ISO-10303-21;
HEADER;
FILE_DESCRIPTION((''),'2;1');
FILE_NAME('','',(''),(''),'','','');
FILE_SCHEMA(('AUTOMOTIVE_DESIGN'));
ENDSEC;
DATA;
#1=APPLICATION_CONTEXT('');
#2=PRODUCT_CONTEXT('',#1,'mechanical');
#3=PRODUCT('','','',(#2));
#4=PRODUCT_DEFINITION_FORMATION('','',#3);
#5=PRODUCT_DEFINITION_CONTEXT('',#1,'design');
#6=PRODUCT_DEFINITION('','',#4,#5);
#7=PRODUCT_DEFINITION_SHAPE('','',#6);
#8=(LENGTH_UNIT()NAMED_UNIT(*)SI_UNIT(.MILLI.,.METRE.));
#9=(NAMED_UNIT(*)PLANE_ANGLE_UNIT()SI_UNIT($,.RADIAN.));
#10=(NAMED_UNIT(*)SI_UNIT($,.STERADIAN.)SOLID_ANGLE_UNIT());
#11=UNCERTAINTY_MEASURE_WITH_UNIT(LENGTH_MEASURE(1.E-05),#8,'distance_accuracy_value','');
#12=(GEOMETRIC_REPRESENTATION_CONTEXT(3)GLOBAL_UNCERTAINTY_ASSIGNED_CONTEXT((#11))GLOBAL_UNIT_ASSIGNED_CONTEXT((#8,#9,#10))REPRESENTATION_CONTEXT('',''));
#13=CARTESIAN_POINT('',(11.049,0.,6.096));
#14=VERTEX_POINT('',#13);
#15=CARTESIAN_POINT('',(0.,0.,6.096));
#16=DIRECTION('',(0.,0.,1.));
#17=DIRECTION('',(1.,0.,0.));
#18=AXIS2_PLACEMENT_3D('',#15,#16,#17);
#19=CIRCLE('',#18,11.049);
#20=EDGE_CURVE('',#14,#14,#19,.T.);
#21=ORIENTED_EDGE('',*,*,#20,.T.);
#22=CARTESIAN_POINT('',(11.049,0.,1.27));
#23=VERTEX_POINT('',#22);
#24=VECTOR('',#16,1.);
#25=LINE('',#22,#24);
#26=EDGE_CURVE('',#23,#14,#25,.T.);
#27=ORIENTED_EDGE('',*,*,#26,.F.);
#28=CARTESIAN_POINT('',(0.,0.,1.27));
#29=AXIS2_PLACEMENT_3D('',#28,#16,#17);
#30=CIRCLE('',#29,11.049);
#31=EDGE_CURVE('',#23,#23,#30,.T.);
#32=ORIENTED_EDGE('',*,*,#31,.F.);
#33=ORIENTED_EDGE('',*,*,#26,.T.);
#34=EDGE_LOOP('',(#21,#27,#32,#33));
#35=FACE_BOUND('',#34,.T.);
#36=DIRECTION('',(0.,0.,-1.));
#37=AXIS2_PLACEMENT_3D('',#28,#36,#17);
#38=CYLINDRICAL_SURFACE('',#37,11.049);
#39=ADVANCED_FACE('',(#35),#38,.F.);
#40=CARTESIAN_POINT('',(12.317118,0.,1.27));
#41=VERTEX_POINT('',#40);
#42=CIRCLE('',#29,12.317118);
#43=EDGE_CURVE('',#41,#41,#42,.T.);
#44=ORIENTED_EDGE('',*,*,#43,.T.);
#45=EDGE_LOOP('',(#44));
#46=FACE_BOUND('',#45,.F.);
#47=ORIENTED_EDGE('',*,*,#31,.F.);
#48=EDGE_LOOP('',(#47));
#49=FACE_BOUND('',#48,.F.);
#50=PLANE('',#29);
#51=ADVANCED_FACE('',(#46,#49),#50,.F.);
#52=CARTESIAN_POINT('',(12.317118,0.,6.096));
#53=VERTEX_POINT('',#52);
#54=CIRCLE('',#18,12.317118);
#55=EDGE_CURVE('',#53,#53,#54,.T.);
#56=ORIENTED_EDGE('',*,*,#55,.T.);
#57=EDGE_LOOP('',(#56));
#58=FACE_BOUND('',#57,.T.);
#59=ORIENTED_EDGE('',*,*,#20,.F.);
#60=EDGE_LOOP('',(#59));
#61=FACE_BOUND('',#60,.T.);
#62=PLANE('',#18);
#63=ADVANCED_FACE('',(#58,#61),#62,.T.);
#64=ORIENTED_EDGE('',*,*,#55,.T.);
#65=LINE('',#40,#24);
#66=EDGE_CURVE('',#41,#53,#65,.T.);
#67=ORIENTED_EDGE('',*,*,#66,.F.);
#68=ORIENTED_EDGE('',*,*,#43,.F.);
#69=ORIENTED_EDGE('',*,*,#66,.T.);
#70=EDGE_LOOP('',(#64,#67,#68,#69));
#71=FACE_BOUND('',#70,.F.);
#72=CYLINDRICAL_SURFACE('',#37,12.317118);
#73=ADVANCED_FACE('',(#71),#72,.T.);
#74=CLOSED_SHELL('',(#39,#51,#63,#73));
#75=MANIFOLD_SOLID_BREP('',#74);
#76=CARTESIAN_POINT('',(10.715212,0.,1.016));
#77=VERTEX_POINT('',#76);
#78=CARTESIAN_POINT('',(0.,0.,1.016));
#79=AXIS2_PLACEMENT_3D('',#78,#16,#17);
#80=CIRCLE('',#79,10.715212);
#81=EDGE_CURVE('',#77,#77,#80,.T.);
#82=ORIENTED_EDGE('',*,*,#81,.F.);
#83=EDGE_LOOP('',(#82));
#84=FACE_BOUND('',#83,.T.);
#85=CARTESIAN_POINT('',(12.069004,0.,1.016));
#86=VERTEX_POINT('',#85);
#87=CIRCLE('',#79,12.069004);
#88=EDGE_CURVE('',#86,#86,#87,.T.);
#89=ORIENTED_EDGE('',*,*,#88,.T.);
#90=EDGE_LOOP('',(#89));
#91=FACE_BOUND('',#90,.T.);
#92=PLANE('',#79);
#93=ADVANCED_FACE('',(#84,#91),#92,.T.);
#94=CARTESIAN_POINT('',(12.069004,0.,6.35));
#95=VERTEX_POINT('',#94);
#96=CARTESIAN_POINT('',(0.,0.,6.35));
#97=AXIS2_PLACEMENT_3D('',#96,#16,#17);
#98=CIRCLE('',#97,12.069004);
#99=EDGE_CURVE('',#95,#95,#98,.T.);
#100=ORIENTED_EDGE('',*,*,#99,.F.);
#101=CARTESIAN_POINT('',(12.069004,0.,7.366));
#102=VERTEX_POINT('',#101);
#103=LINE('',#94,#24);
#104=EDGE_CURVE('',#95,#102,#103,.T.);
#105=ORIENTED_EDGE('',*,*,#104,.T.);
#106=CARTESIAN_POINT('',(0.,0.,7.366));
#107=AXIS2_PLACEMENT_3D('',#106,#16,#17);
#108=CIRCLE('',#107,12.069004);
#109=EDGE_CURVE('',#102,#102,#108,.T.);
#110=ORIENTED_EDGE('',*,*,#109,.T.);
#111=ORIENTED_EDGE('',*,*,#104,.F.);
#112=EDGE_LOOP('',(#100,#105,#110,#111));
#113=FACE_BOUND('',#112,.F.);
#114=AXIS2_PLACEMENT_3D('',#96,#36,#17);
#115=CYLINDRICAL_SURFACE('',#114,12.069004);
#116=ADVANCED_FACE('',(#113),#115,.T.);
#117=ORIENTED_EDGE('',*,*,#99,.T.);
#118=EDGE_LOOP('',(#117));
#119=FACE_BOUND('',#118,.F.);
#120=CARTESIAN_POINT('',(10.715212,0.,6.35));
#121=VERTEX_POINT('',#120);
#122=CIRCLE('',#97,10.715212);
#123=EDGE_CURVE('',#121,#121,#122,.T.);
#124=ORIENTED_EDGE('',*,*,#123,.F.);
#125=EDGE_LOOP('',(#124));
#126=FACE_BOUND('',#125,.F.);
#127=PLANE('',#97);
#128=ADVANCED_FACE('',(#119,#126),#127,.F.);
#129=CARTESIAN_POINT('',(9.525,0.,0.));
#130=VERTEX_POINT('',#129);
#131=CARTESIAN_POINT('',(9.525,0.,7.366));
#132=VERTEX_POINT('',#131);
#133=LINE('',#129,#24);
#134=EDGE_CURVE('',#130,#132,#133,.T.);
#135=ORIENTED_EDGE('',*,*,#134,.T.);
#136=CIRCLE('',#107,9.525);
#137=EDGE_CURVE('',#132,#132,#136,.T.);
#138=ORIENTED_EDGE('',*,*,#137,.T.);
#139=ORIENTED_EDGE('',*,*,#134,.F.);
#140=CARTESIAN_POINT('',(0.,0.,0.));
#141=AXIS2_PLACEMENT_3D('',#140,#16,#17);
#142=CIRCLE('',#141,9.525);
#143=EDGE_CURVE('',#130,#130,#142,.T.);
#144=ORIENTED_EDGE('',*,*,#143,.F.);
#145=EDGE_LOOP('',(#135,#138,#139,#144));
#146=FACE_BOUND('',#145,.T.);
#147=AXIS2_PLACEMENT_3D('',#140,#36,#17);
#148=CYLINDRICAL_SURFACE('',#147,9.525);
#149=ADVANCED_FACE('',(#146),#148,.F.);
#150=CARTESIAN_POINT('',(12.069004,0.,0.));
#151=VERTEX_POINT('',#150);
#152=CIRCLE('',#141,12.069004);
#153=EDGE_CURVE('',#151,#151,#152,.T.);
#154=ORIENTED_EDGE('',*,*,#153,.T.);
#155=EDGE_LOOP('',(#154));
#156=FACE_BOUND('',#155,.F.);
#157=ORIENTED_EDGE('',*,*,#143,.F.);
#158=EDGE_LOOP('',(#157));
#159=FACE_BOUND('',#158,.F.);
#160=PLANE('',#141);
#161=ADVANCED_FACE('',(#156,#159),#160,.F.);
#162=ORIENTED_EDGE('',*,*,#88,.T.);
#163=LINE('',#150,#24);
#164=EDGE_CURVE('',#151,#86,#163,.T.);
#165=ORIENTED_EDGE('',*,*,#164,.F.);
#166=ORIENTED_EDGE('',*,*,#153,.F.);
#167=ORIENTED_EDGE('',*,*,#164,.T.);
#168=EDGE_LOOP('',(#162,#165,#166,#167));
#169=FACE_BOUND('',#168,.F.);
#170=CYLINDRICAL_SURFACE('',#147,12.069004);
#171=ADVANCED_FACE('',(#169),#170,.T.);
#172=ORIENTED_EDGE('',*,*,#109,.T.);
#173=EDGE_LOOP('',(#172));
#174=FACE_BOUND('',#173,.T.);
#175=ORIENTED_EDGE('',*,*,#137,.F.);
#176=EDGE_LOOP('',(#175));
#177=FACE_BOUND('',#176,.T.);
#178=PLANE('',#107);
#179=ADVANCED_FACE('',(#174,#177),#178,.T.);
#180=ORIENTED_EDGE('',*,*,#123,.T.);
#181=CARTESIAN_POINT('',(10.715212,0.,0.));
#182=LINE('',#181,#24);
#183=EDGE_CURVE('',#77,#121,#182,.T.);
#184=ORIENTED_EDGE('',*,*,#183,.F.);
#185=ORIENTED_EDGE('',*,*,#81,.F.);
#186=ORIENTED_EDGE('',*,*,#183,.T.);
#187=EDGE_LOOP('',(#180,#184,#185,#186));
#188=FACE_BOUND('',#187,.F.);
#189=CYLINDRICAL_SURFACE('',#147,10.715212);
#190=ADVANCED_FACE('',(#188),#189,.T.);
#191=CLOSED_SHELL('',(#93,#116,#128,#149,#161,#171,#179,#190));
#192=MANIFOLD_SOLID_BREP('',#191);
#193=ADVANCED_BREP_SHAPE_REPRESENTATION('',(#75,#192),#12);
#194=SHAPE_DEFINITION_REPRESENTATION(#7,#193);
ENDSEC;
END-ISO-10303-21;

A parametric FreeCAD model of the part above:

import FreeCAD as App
import Part
import Sketcher

V = App.Vector
Q = App.Units.Quantity

doc = App.newDocument("Part")
body = doc.addObject("PartDesign::Body", "Body")

sketch1 = doc.addObject("Sketcher::SketchObject", "Sketch")
body.addObject(sketch1)
sketch1.AttachmentSupport = (doc.XY_Plane, [""])
sketch1.MapMode = "FlatFace"
sketch1.addGeometry([
    Part.Circle(V(0, 0, 0), V(0, 0, 1), 10.715212),
    Part.Circle(V(0, 0, 0), V(0, 0, 1), 9.525),
], False)
sketch1.addConstraint([
    Sketcher.Constraint("Coincident", 0, 3, -1, 1),
    Sketcher.Constraint("Coincident", 1, 3, -1, 1),
    Sketcher.Constraint("Diameter", 1, Q("0.75 in")),
    Sketcher.Constraint("Diameter", 0, Q("21.430423 mm")),
])
pad1 = doc.addObject("PartDesign::Pad", "Pad")
body.addObject(pad1)
pad1.Profile = sketch1
pad1.Length = Q("0.29 in")

sketch2 = doc.addObject("Sketcher::SketchObject", "Sketch001")
body.addObject(sketch2)
sketch2.AttachmentSupport = (doc.XY_Plane, [""])
sketch2.MapMode = "FlatFace"
sketch2.addGeometry([
    Part.Circle(V(0, 0, 0), V(0, 0, 1), 12.069004),
    Part.Circle(V(0, 0, 0), V(0, 0, 1), 10.715212),
], False)
sketch2.addConstraint([
    Sketcher.Constraint("Coincident", 0, 3, -1, 1),
    Sketcher.Constraint("Coincident", 1, 3, -1, 1),
    Sketcher.Constraint("Diameter", 0, Q("24.138008 mm")),
    Sketcher.Constraint("Diameter", 1, Q("21.430423 mm")),
])
pad2 = doc.addObject("PartDesign::Pad", "Pad001")
body.addObject(pad2)
pad2.Profile = sketch2
pad2.Length = Q("0.04 in")

sketch3 = doc.addObject("Sketcher::SketchObject", "Sketch002")
body.addObject(sketch3)
sketch3.AttachmentSupport = (doc.XY_Plane, [""])
sketch3.MapMode = "FlatFace"
sketch3.AttachmentOffset = App.Placement(V(0, 0, 0.25 * 25.4), App.Rotation())
sketch3.addGeometry([
    Part.Circle(V(0, 0, 0), V(0, 0, 1), 12.069004),
    Part.Circle(V(0, 0, 0), V(0, 0, 1), 10.715212),
], False)
sketch3.addConstraint([
    Sketcher.Constraint("Coincident", 0, 3, -1, 1),
    Sketcher.Constraint("Coincident", 1, 3, -1, 1),
    Sketcher.Constraint("Diameter", 0, Q("24.138008 mm")),
    Sketcher.Constraint("Diameter", 1, Q("21.430423 mm")),
])
pad3 = doc.addObject("PartDesign::Pad", "Pad002")
body.addObject(pad3)
pad3.Profile = sketch3
pad3.Length = Q("0.04 in")
body2 = doc.addObject("PartDesign::Body", "Body001")

sketch4 = doc.addObject("Sketcher::SketchObject", "Sketch003")
body2.addObject(sketch4)
sketch4.AttachmentSupport = (doc.getObject("XY_Plane001"), [""])
sketch4.MapMode = "FlatFace"
sketch4.AttachmentOffset = App.Placement(V(0, 0, 0.05 * 25.4), App.Rotation())
sketch4.addGeometry([
    Part.Circle(V(0, 0, 0), V(0, 0, 1), 12.317118),
    Part.Circle(V(0, 0, 0), V(0, 0, 1), 11.049),
], False)
sketch4.addConstraint([
    Sketcher.Constraint("Coincident", 0, 3, -1, 1),
    Sketcher.Constraint("Coincident", 1, 3, -1, 1),
    Sketcher.Constraint("Diameter", 1, Q("0.87 in")),
    Sketcher.Constraint("Diameter", 0, Q("24.634236 mm")),
])
pad4 = doc.addObject("PartDesign::Pad", "Pad003")
body2.addObject(pad4)
pad4.Profile = sketch4
pad4.Length = Q("0.19 in")

doc.recompute()
